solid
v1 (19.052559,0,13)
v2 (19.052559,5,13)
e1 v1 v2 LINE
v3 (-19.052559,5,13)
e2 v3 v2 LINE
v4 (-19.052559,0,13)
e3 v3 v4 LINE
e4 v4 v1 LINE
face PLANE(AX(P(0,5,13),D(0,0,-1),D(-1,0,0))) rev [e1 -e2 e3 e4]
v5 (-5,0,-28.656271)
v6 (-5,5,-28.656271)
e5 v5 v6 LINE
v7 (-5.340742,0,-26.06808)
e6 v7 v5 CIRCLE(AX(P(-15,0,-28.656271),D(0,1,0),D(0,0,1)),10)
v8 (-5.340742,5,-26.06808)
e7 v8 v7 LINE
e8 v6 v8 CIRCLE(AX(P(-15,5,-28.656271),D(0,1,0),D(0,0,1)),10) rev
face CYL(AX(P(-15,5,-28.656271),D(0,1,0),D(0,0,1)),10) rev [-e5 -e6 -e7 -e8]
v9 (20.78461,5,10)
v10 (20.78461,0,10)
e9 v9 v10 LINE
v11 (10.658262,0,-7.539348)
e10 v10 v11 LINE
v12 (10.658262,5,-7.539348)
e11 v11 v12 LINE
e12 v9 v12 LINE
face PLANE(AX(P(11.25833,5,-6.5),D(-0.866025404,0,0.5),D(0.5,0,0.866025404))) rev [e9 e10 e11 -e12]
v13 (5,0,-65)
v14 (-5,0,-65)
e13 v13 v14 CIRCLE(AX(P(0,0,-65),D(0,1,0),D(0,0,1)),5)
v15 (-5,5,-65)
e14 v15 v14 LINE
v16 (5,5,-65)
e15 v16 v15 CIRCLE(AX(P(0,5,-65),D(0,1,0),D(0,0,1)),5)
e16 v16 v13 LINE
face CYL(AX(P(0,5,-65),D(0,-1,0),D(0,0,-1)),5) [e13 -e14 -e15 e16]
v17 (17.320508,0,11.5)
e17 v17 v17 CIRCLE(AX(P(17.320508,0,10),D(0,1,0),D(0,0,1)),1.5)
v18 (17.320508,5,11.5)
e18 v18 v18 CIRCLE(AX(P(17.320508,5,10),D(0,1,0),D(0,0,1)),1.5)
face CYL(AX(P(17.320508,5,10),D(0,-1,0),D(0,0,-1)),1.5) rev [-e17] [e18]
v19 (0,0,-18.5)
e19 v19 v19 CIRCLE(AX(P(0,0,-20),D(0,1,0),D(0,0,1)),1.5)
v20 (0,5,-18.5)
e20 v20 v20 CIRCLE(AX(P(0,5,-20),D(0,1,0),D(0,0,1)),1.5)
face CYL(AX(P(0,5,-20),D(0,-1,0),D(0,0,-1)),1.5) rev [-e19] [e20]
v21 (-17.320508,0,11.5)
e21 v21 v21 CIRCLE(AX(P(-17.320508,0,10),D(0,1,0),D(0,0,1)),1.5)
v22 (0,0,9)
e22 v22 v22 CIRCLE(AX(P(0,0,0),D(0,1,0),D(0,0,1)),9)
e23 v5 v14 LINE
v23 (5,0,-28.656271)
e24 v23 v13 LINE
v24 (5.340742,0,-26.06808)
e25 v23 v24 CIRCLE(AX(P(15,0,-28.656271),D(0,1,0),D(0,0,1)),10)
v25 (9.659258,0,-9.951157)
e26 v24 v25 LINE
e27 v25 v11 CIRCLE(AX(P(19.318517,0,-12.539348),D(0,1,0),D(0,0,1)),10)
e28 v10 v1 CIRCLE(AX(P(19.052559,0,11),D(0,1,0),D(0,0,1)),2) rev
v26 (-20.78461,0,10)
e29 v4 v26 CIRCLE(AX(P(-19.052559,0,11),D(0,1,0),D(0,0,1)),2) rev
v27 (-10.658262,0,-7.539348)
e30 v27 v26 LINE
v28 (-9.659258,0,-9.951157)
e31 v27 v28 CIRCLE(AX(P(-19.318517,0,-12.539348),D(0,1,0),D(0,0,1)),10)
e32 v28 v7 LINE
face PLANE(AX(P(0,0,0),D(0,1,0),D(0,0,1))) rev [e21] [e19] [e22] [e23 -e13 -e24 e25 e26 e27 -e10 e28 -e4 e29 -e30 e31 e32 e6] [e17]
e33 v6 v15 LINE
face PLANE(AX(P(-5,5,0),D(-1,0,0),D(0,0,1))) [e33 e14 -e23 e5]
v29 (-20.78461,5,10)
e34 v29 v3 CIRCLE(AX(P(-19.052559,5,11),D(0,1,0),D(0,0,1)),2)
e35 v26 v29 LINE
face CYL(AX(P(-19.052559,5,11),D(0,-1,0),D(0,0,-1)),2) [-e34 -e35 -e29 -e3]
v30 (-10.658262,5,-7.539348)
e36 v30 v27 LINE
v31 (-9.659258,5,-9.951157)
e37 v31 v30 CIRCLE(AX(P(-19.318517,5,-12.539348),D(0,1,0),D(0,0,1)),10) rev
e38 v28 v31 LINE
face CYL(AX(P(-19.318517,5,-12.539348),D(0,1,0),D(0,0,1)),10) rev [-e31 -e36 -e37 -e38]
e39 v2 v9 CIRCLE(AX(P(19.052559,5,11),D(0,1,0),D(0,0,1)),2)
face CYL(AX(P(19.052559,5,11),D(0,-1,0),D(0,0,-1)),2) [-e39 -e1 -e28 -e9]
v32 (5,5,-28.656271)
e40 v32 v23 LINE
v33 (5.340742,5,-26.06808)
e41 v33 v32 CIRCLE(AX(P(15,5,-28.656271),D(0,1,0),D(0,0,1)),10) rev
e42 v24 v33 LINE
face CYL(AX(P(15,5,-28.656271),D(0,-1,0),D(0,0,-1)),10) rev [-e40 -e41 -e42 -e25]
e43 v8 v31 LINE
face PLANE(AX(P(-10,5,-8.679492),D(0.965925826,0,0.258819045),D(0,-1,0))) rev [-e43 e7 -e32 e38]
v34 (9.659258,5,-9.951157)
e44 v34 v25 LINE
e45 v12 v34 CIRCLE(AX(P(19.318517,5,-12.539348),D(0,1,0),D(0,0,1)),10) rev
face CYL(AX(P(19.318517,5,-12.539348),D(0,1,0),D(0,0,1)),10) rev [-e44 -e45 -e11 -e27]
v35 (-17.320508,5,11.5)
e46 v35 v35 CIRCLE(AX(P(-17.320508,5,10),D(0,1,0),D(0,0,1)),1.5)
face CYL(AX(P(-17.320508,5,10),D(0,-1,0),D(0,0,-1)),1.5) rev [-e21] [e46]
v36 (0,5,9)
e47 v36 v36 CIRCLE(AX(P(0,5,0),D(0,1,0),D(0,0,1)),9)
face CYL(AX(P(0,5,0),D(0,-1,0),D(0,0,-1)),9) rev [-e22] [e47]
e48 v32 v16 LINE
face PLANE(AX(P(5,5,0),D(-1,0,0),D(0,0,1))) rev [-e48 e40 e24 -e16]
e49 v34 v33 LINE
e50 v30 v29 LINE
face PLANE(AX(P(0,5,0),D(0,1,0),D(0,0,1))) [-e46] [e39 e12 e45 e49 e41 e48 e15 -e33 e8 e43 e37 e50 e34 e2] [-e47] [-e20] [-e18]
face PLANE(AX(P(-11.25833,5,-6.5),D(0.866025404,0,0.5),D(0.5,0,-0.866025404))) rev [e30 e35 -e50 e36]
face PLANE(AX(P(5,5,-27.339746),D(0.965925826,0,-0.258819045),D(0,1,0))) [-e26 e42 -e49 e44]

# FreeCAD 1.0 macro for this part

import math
import FreeCAD as App
import Part
import Sketcher
Q = App.Units.Quantity


def edges_at(feature, points):
    """Names of the edges that pass closest to the given points."""
    edges = feature.Shape.Edges
    near = lambda p: min(range(len(edges)), key=lambda i: edges[i].distToShape(Part.Vertex(*p))[0])
    return sorted({f"Edge{near(p) + 1}" for p in points})

doc = App.newDocument("Part")
body = doc.addObject("PartDesign::Body", "Body")

# Sketch on XZ plane
sketch1 = doc.addObject("Sketcher::SketchObject", "Sketch")
body.addObject(sketch1)
sketch1.AttachmentSupport = (doc.XZ_Plane, [""])
sketch1.MapMode = "FlatFace"
sketch1.addGeometry(Part.LineSegment(App.Vector(5, -17.3, 0), App.Vector(5, -65, 0)), False)
sketch1.addGeometry(Part.ArcOfCircle(Part.Circle(App.Vector(0, -65, 0), App.Vector(0, 0, 1), 5), math.radians(180), math.radians(360)), False)
sketch1.addGeometry(Part.LineSegment(App.Vector(-5, -65, 0), App.Vector(-5, -17.3, 0)), False)
sketch1.addGeometry(Part.LineSegment(App.Vector(-5, -17.3, 0), App.Vector(-22.5, 13, 0)), False)
sketch1.addGeometry(Part.LineSegment(App.Vector(-22.5, 13, 0), App.Vector(22.5, 13, 0)), False)
sketch1.addGeometry(Part.LineSegment(App.Vector(22.5, 13, 0), App.Vector(5, -17.3, 0)), False)
sketch1.addGeometry(Part.Circle(App.Vector(-17.3, 10, 0), App.Vector(0, 0, 1), 1.5), False)
sketch1.addGeometry(Part.Circle(App.Vector(17.3, 10, 0), App.Vector(0, 0, 1), 1.5), False)
sketch1.addGeometry(Part.Circle(App.Vector(0, 0, 0), App.Vector(0, 0, 1), 9), False)
sketch1.addGeometry(Part.Circle(App.Vector(0, -20, 0), App.Vector(0, 0, 1), 1.5), False)
sketch1.addConstraint(Sketcher.Constraint("Tangent", 0, 2, 1, 2))
sketch1.addConstraint(Sketcher.Constraint("Tangent", 1, 1, 2, 1))
sketch1.addConstraint(Sketcher.Constraint("Coincident", 2, 2, 3, 1))
sketch1.addConstraint(Sketcher.Constraint("Coincident", 3, 2, 4, 1))
sketch1.addConstraint(Sketcher.Constraint("Coincident", 4, 2, 5, 1))
sketch1.addConstraint(Sketcher.Constraint("Coincident", 5, 2, 0, 1))
sketch1.addConstraint(Sketcher.Constraint("Vertical", 0))
sketch1.addConstraint(Sketcher.Constraint("Vertical", 2))
sketch1.addConstraint(Sketcher.Constraint("Horizontal", 4))
sketch1.addConstraint(Sketcher.Constraint("Coincident", 8, 3, -1, 1))
sketch1.addConstraint(Sketcher.Constraint("Equal", 6, 7))
sketch1.addConstraint(Sketcher.Constraint("Equal", 7, 9))
sketch1.addConstraint(Sketcher.Constraint("Symmetric", 6, 3, 7, 3, -2))
sketch1.addConstraint(Sketcher.Constraint("Symmetric", 2, 2, 5, 2, -2))
sketch1.addConstraint(Sketcher.Constraint("PointOnObject", 9, 3, -2))
sketch1.addConstraint(Sketcher.Constraint("Equal", 3, 5))
sketch1.addConstraint(Sketcher.Constraint("Diameter", 6, Q("3 mm")))
sketch1.addConstraint(Sketcher.Constraint("Diameter", 8, Q("18 mm")))
sketch1.addConstraint(Sketcher.Constraint("Radius", 1, Q("5 mm")))
sketch1.addConstraint(Sketcher.Constraint("Angle", 3, Q("120 deg")))
sketch1.addConstraint(Sketcher.Constraint("DistanceY", 1, 3, -1, 1, Q("65 mm")))
sketch1.addConstraint(Sketcher.Constraint("DistanceY", -1, 1, 6, 3, Q("10 mm")))
sketch1.addConstraint(Sketcher.Constraint("DistanceY", 9, 3, -1, 1, Q("20 mm")))
sketch1.addConstraint(Sketcher.Constraint("DistanceY", -1, 1, 3, 2, Q("13 mm")))
sketch1.addConstraint(Sketcher.Constraint("DistanceX", 4, 1, 4, 2, Q("45.033321 mm")))
sketch1.addConstraint(Sketcher.Constraint("DistanceX", 6, 3, -1, 1, Q("17.320508 mm")))
pad1 = doc.addObject("PartDesign::Pad", "Pad")
body.addObject(pad1)
pad1.Profile = sketch1
pad1.Length = 5
pad1.Reversed = True
doc.recompute()

fillet = doc.addObject("PartDesign::Fillet", "Fillet")
body.addObject(fillet)
fillet.Base = (pad1, edges_at(pad1, [(22.517, 2.5, 13), (-22.517, 2.5, 13)]))
fillet.Radius = 2
doc.recompute()

chamfer = doc.addObject("PartDesign::Chamfer", "Chamfer")
body.addObject(chamfer)
chamfer.Base = (fillet, edges_at(fillet, [(-5, 2.5, -17.34), (5, 2.5, -17.34)]))
chamfer.Size = 10
doc.recompute()

fillet2 = doc.addObject("PartDesign::Fillet", "Fillet001")
body.addObject(fillet2)
fillet2.Base = (chamfer, edges_at(chamfer, [
    (5, 2.5, -27.34),
    (10, 2.5, -8.679),
    (-10, 2.5, -8.679),
    (-5, 2.5, -27.34),
]))
fillet2.Radius = 10

doc.recompute()
